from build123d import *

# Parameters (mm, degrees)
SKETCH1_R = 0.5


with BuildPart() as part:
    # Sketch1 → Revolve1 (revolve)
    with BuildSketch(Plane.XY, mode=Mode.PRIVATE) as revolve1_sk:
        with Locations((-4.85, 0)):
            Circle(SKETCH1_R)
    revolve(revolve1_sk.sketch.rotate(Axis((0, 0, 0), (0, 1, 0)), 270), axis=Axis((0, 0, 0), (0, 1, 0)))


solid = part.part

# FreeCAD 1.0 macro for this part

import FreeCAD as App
import Part
import Sketcher
Q = App.Units.Quantity

doc = App.newDocument("Part")
body = doc.addObject("PartDesign::Body", "Body")

sketch1 = doc.addObject("Sketcher::SketchObject", "Sketch")
body.addObject(sketch1)
sketch1.AttachmentSupport = (doc.XY_Plane, [""])
sketch1.MapMode = "FlatFace"
sketch1.addGeometry(Part.Circle(App.Vector(-4.8, 0, 0), App.Vector(0, 0, 1), 0.5), False)
sketch1.addConstraint([
    Sketcher.Constraint("PointOnObject", 0, 3, -1),
    Sketcher.Constraint("Diameter", 0, Q("1 mm")),
    Sketcher.Constraint("DistanceX", 0, 3, -1, 1, Q("4.85 mm")),
])
revolution = doc.addObject("PartDesign::Revolution", "Revolution")
body.addObject(revolution)
revolution.Profile = sketch1
revolution.ReferenceAxis = (sketch1, ["V_Axis"])
revolution.Angle = 360

doc.recompute()
